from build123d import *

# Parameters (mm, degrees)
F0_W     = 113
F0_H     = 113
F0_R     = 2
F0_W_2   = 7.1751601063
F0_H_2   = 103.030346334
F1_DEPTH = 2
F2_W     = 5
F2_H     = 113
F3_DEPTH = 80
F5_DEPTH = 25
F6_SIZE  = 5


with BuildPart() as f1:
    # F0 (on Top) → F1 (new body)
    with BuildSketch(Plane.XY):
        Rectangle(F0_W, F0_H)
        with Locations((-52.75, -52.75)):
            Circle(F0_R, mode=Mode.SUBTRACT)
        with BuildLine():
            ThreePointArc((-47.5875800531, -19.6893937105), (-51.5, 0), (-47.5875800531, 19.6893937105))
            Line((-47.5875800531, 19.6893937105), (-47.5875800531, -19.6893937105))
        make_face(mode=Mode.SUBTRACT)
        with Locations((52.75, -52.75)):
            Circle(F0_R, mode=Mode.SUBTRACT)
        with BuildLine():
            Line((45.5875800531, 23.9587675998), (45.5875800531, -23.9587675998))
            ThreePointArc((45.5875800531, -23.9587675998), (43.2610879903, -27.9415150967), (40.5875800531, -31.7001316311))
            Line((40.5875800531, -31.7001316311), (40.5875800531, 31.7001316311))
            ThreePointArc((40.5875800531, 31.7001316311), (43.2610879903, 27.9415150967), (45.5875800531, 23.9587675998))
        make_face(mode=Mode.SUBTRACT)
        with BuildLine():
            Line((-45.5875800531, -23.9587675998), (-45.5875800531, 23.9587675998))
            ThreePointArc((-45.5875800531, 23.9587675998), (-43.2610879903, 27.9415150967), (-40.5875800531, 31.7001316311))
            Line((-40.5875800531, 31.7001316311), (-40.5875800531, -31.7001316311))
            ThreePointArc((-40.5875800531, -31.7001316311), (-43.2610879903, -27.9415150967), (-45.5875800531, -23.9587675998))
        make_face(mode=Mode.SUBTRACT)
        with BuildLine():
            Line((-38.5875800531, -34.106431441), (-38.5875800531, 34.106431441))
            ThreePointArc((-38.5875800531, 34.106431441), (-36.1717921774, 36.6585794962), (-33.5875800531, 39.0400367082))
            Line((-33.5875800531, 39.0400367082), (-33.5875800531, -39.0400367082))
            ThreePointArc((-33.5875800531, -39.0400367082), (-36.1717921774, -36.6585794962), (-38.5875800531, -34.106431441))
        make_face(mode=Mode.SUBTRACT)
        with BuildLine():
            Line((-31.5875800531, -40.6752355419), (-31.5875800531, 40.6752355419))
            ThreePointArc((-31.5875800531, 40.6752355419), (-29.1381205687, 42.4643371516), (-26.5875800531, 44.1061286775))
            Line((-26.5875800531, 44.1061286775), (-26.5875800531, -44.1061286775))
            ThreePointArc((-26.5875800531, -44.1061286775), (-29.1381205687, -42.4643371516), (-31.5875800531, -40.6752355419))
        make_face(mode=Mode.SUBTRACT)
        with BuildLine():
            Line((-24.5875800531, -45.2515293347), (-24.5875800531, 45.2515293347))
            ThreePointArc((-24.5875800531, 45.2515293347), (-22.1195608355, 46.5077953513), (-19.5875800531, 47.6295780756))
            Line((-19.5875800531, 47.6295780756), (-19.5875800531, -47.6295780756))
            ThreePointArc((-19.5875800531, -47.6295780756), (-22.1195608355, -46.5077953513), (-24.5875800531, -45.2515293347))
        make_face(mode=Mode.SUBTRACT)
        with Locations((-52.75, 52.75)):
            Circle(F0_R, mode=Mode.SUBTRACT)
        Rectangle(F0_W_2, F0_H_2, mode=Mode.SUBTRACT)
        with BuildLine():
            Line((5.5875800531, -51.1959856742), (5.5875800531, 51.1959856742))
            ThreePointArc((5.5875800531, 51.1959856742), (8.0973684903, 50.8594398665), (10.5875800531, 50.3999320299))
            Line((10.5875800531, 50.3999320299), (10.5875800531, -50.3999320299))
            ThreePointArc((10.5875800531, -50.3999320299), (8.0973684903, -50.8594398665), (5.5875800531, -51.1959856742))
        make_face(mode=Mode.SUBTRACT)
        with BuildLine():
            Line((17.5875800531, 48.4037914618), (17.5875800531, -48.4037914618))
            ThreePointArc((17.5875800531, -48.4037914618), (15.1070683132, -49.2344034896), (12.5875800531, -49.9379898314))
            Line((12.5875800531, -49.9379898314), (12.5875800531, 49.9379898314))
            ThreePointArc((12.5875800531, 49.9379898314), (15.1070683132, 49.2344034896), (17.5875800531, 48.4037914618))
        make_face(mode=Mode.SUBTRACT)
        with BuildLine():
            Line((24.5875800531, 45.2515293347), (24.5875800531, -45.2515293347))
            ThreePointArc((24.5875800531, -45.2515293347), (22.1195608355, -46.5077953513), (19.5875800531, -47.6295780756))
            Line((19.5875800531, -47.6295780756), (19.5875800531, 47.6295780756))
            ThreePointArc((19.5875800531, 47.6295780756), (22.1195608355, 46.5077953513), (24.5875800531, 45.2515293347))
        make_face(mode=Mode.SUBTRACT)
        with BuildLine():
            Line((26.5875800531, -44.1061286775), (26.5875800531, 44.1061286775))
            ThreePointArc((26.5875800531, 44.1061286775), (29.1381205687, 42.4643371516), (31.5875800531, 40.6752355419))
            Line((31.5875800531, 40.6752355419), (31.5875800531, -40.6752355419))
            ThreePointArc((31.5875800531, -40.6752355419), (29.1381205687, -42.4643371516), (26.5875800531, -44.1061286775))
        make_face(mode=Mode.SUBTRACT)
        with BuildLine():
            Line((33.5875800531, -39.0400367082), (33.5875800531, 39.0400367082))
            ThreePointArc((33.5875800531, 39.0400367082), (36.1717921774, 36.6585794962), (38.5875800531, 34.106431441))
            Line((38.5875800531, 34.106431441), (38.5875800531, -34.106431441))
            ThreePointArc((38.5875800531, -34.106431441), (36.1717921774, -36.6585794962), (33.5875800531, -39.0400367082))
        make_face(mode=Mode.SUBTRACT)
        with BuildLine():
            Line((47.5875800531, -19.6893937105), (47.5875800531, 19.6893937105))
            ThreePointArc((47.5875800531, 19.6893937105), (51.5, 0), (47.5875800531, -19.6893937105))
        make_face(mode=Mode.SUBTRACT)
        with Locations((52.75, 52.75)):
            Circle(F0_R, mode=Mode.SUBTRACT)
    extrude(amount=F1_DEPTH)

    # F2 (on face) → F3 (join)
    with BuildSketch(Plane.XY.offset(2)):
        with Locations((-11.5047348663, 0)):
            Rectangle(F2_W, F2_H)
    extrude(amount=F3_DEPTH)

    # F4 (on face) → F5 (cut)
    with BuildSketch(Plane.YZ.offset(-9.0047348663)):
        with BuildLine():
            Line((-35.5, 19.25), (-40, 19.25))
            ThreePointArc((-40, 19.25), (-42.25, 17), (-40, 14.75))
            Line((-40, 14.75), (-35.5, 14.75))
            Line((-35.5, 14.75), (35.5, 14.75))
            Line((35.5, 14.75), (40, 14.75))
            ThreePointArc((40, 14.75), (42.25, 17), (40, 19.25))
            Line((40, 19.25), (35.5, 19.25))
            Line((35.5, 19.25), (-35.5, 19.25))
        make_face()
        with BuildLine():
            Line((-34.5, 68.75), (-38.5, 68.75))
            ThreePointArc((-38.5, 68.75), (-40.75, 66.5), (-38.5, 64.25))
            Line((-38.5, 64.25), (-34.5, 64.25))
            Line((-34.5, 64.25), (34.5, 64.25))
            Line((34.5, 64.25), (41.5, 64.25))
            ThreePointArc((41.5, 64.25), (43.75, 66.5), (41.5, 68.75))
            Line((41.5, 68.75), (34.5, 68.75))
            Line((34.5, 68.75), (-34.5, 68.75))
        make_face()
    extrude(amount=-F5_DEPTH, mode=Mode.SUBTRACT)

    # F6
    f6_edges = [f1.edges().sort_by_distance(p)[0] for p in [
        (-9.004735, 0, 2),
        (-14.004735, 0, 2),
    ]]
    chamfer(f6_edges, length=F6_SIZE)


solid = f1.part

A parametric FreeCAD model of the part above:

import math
import FreeCAD as App
import Part
import Sketcher


def edges_at(feature, points):
    """Names of the edges that pass closest to the given points."""
    edges = feature.Shape.Edges
    near = lambda p: min(range(len(edges)), key=lambda i: edges[i].distToShape(Part.Vertex(*p))[0])
    return sorted({f"Edge{near(p) + 1}" for p in points})


def add_polygon(sketch, points):
    """Adds a closed chain of lines whose ends are joined by coincident constraints."""
    first, n = sketch.GeometryCount, len(points)
    for a, b in zip(points, points[1:] + points[:1]):
        sketch.addGeometry(Part.LineSegment(App.Vector(*a, 0), App.Vector(*b, 0)), False)
    for i in range(n):
        sketch.addConstraint(Sketcher.Constraint("Coincident", first + i, 2, first + (i + 1) % n, 1))

doc = App.newDocument("Part")
body = doc.addObject("PartDesign::Body", "Body")

# Sketch on XY plane
sketch1 = body.newObject("Sketcher::SketchObject", "Sketch")
sketch1.AttachmentSupport = (doc.getObject("XY_Plane"), [""])
sketch1.MapMode = "FlatFace"
add_polygon(sketch1, [(-56.5, 56.5), (-56.5, -56.5), (56.5, -56.5), (56.5, 56.5)])  # lines 0-3
sketch1.addGeometry(Part.Circle(App.Vector(-52.8, -52.8, 0), App.Vector(0, 0, 1), 2), False)  # 4
sketch1.addGeometry(Part.Circle(App.Vector(52.8, -52.8, 0), App.Vector(0, 0, 1), 2), False)  # 5
sketch1.addGeometry(Part.ArcOfCircle(Part.Circle(App.Vector(0, 0, 0), App.Vector(0, 0, 1), 51.5), math.radians(70.03), math.radians(75.85)), False)  # 6
sketch1.addGeometry(Part.LineSegment(App.Vector(17.6, 48.4, 0), App.Vector(17.6, -48.4, 0)), False)  # 7
sketch1.addGeometry(Part.ArcOfCircle(Part.Circle(App.Vector(0, 0, 0), App.Vector(0, 0, 1), 51.5), math.radians(-75.85), math.radians(-70.03)), False)  # 8
sketch1.addGeometry(Part.LineSegment(App.Vector(12.6, -49.9, 0), App.Vector(12.6, 49.9, 0)), False)  # 9
sketch1.addGeometry(Part.LineSegment(App.Vector(-47.6, 19.7, 0), App.Vector(-47.6, -19.7, 0)), False)  # 10
sketch1.addGeometry(Part.ArcOfCircle(Part.Circle(App.Vector(0, 0, 0), App.Vector(0, 0, 1), 51.5), math.radians(158), math.radians(202)), False)  # 11
sketch1.addGeometry(Part.ArcOfCircle(Part.Circle(App.Vector(0, 0, 0), App.Vector(0, 0, 1), 51.5), math.radians(-152.28), math.radians(-142.01)), False)  # 12
sketch1.addGeometry(Part.LineSegment(App.Vector(-45.6, -24, 0), App.Vector(-45.6, 24, 0)), False)  # 13
sketch1.addGeometry(Part.ArcOfCircle(Part.Circle(App.Vector(0, 0, 0), App.Vector(0, 0, 1), 51.5), math.radians(142.01), math.radians(152.28)), False)  # 14
sketch1.addGeometry(Part.LineSegment(App.Vector(-40.6, 31.7, 0), App.Vector(-40.6, -31.7, 0)), False)  # 15
sketch1.addGeometry(Part.ArcOfCircle(Part.Circle(App.Vector(0, 0, 0), App.Vector(0, 0, 1), 51.5), math.radians(-138.53), math.radians(-130.71)), False)  # 16
sketch1.addGeometry(Part.LineSegment(App.Vector(-38.6, -34.1, 0), App.Vector(-38.6, 34.1, 0)), False)  # 17
sketch1.addGeometry(Part.ArcOfCircle(Part.Circle(App.Vector(0, 0, 0), App.Vector(0, 0, 1), 51.5), math.radians(130.71), math.radians(138.53)), False)  # 18
sketch1.addGeometry(Part.LineSegment(App.Vector(-33.6, 39, 0), App.Vector(-33.6, -39, 0)), False)  # 19
sketch1.addGeometry(Part.ArcOfCircle(Part.Circle(App.Vector(0, 0, 0), App.Vector(0, 0, 1), 51.5), math.radians(-127.83), math.radians(-121.08)), False)  # 20
sketch1.addGeometry(Part.LineSegment(App.Vector(-31.6, -40.7, 0), App.Vector(-31.6, 40.7, 0)), False)  # 21
sketch1.addGeometry(Part.ArcOfCircle(Part.Circle(App.Vector(0, 0, 0), App.Vector(0, 0, 1), 51.5), math.radians(121.08), math.radians(127.83)), False)  # 22
sketch1.addGeometry(Part.LineSegment(App.Vector(-26.6, 44.1, 0), App.Vector(-26.6, -44.1, 0)), False)  # 23
sketch1.addGeometry(Part.ArcOfCircle(Part.Circle(App.Vector(0, 0, 0), App.Vector(0, 0, 1), 51.5), math.radians(-118.52), math.radians(-112.35)), False)  # 24
sketch1.addGeometry(Part.LineSegment(App.Vector(-24.6, -45.3, 0), App.Vector(-24.6, 45.3, 0)), False)  # 25
sketch1.addGeometry(Part.ArcOfCircle(Part.Circle(App.Vector(0, 0, 0), App.Vector(0, 0, 1), 51.5), math.radians(112.35), math.radians(118.52)), False)  # 26
sketch1.addGeometry(Part.LineSegment(App.Vector(-19.6, 47.6, 0), App.Vector(-19.6, -47.6, 0)), False)  # 27
sketch1.addGeometry(Part.Circle(App.Vector(-52.8, 52.8, 0), App.Vector(0, 0, 1), 2), False)  # 28
add_polygon(sketch1, [(3.6, -51.5), (-3.6, -51.5), (-3.6, 51.5), (3.6, 51.5)])  # lines 29-32
sketch1.addGeometry(Part.ArcOfCircle(Part.Circle(App.Vector(0, 0, 0), App.Vector(0, 0, 1), 51.5), math.radians(-83.77), math.radians(-78.14)), False)  # 33
sketch1.addGeometry(Part.LineSegment(App.Vector(5.6, -51.2, 0), App.Vector(5.6, 51.2, 0)), False)  # 34
sketch1.addGeometry(Part.ArcOfCircle(Part.Circle(App.Vector(0, 0, 0), App.Vector(0, 0, 1), 51.5), math.radians(78.14), math.radians(83.77)), False)  # 35
sketch1.addGeometry(Part.LineSegment(App.Vector(10.6, 50.4, 0), App.Vector(10.6, -50.4, 0)), False)  # 36
sketch1.addGeometry(Part.ArcOfCircle(Part.Circle(App.Vector(0, 0, 0), App.Vector(0, 0, 1), 51.5), math.radians(61.48), math.radians(67.65)), False)  # 37
sketch1.addGeometry(Part.LineSegment(App.Vector(24.6, 45.3, 0), App.Vector(24.6, -45.3, 0)), False)  # 38
sketch1.addGeometry(Part.ArcOfCircle(Part.Circle(App.Vector(0, 0, 0), App.Vector(0, 0, 1), 51.5), math.radians(-67.65), math.radians(-61.48)), False)  # 39
sketch1.addGeometry(Part.LineSegment(App.Vector(19.6, -47.6, 0), App.Vector(19.6, 47.6, 0)), False)  # 40
sketch1.addGeometry(Part.ArcOfCircle(Part.Circle(App.Vector(0, 0, 0), App.Vector(0, 0, 1), 51.5), math.radians(-58.92), math.radians(-52.17)), False)  # 41
sketch1.addGeometry(Part.LineSegment(App.Vector(26.6, -44.1, 0), App.Vector(26.6, 44.1, 0)), False)  # 42
sketch1.addGeometry(Part.ArcOfCircle(Part.Circle(App.Vector(0, 0, 0), App.Vector(0, 0, 1), 51.5), math.radians(52.17), math.radians(58.92)), False)  # 43
sketch1.addGeometry(Part.LineSegment(App.Vector(31.6, 40.7, 0), App.Vector(31.6, -40.7, 0)), False)  # 44
sketch1.addGeometry(Part.ArcOfCircle(Part.Circle(App.Vector(0, 0, 0), App.Vector(0, 0, 1), 51.5), math.radians(-49.29), math.radians(-41.47)), False)  # 45
sketch1.addGeometry(Part.LineSegment(App.Vector(33.6, -39, 0), App.Vector(33.6, 39, 0)), False)  # 46
sketch1.addGeometry(Part.ArcOfCircle(Part.Circle(App.Vector(0, 0, 0), App.Vector(0, 0, 1), 51.5), math.radians(41.47), math.radians(49.29)), False)  # 47
sketch1.addGeometry(Part.LineSegment(App.Vector(38.6, 34.1, 0), App.Vector(38.6, -34.1, 0)), False)  # 48
sketch1.addGeometry(Part.ArcOfCircle(Part.Circle(App.Vector(0, 0, 0), App.Vector(0, 0, 1), 51.5), math.radians(27.72), math.radians(37.99)), False)  # 49
sketch1.addGeometry(Part.LineSegment(App.Vector(45.6, 24, 0), App.Vector(45.6, -24, 0)), False)  # 50
sketch1.addGeometry(Part.ArcOfCircle(Part.Circle(App.Vector(0, 0, 0), App.Vector(0, 0, 1), 51.5), math.radians(-37.99), math.radians(-27.72)), False)  # 51
sketch1.addGeometry(Part.LineSegment(App.Vector(40.6, -31.7, 0), App.Vector(40.6, 31.7, 0)), False)  # 52
sketch1.addGeometry(Part.ArcOfCircle(Part.Circle(App.Vector(0, 0, 0), App.Vector(0, 0, 1), 51.5), math.radians(-22), math.radians(22)), False)  # 53
sketch1.addGeometry(Part.LineSegment(App.Vector(47.6, -19.7, 0), App.Vector(47.6, 19.7, 0)), False)  # 54
sketch1.addGeometry(Part.Circle(App.Vector(52.8, 52.8, 0), App.Vector(0, 0, 1), 2), False)  # 55
sketch1.addConstraint([
    Sketcher.Constraint("Coincident", 6, 1, 7, 1),
    Sketcher.Constraint("Coincident", 7, 2, 8, 2),
    Sketcher.Constraint("Coincident", 8, 1, 9, 1),
    Sketcher.Constraint("Coincident", 9, 2, 6, 2),
    Sketcher.Constraint("Coincident", 10, 1, 11, 1),
    Sketcher.Constraint("Coincident", 11, 2, 10, 2),
    Sketcher.Constraint("Coincident", 12, 1, 13, 1),
    Sketcher.Constraint("Coincident", 13, 2, 14, 2),
    Sketcher.Constraint("Coincident", 14, 1, 15, 1),
    Sketcher.Constraint("Coincident", 15, 2, 12, 2),
    Sketcher.Constraint("Coincident", 16, 1, 17, 1),
    Sketcher.Constraint("Coincident", 17, 2, 18, 2),
    Sketcher.Constraint("Coincident", 18, 1, 19, 1),
    Sketcher.Constraint("Coincident", 19, 2, 16, 2),
    Sketcher.Constraint("Coincident", 20, 1, 21, 1),
    Sketcher.Constraint("Coincident", 21, 2, 22, 2),
    Sketcher.Constraint("Coincident", 22, 1, 23, 1),
    Sketcher.Constraint("Coincident", 23, 2, 20, 2),
    Sketcher.Constraint("Coincident", 24, 1, 25, 1),
    Sketcher.Constraint("Coincident", 25, 2, 26, 2),
    Sketcher.Constraint("Coincident", 26, 1, 27, 1),
    Sketcher.Constraint("Coincident", 27, 2, 24, 2),
    Sketcher.Constraint("Coincident", 33, 1, 34, 1),
    Sketcher.Constraint("Coincident", 34, 2, 35, 2),
    Sketcher.Constraint("Coincident", 35, 1, 36, 1),
    Sketcher.Constraint("Coincident", 36, 2, 33, 2),
    Sketcher.Constraint("Coincident", 37, 1, 38, 1),
    Sketcher.Constraint("Coincident", 38, 2, 39, 2),
    Sketcher.Constraint("Coincident", 39, 1, 40, 1),
    Sketcher.Constraint("Coincident", 40, 2, 37, 2),
    Sketcher.Constraint("Coincident", 41, 1, 42, 1),
    Sketcher.Constraint("Coincident", 42, 2, 43, 2),
    Sketcher.Constraint("Coincident", 43, 1, 44, 1),
    Sketcher.Constraint("Coincident", 44, 2, 41, 2),
    Sketcher.Constraint("Coincident", 45, 1, 46, 1),
    Sketcher.Constraint("Coincident", 46, 2, 47, 2),
    Sketcher.Constraint("Coincident", 47, 1, 48, 1),
    Sketcher.Constraint("Coincident", 48, 2, 45, 2),
    Sketcher.Constraint("Coincident", 49, 1, 50, 1),
    Sketcher.Constraint("Coincident", 50, 2, 51, 2),
    Sketcher.Constraint("Coincident", 51, 1, 52, 1),
    Sketcher.Constraint("Coincident", 52, 2, 49, 2),
    Sketcher.Constraint("Coincident", 53, 1, 54, 1),
    Sketcher.Constraint("Coincident", 54, 2, 53, 2),
    Sketcher.Constraint("Vertical", 0),
    Sketcher.Constraint("Horizontal", 1),
    Sketcher.Constraint("Vertical", 2),
    Sketcher.Constraint("Horizontal", 3),
    Sketcher.Constraint("Vertical", 7),
    Sketcher.Constraint("Vertical", 9),
    Sketcher.Constraint("Vertical", 10),
    Sketcher.Constraint("Vertical", 13),
    Sketcher.Constraint("Vertical", 15),
    Sketcher.Constraint("Vertical", 17),
    Sketcher.Constraint("Vertical", 19),
    Sketcher.Constraint("Vertical", 21),
    Sketcher.Constraint("Vertical", 23),
    Sketcher.Constraint("Vertical", 25),
    Sketcher.Constraint("Vertical", 27),
    Sketcher.Constraint("Horizontal", 29),
    Sketcher.Constraint("Vertical", 30),
    Sketcher.Constraint("Horizontal", 31),
    Sketcher.Constraint("Vertical", 32),
    Sketcher.Constraint("Vertical", 34),
    Sketcher.Constraint("Vertical", 36),
    Sketcher.Constraint("Vertical", 38),
    Sketcher.Constraint("Vertical", 40),
    Sketcher.Constraint("Vertical", 42),
    Sketcher.Constraint("Vertical", 44),
    Sketcher.Constraint("Vertical", 46),
    Sketcher.Constraint("Vertical", 48),
    Sketcher.Constraint("Vertical", 50),
    Sketcher.Constraint("Vertical", 52),
    Sketcher.Constraint("Vertical", 54),
    Sketcher.Constraint("Coincident", 6, 3, -1, 1),
    Sketcher.Constraint("Coincident", 8, 3, -1, 1),
    Sketcher.Constraint("Coincident", 11, 3, -1, 1),
    Sketcher.Constraint("Coincident", 12, 3, -1, 1),
    Sketcher.Constraint("Coincident", 14, 3, -1, 1),
    Sketcher.Constraint("Coincident", 16, 3, -1, 1),
    Sketcher.Constraint("Coincident", 18, 3, -1, 1),
    Sketcher.Constraint("Coincident", 20, 3, -1, 1),
    Sketcher.Constraint("Coincident", 22, 3, -1, 1),
    Sketcher.Constraint("Coincident", 24, 3, -1, 1),
    Sketcher.Constraint("Coincident", 26, 3, -1, 1),
    Sketcher.Constraint("Coincident", 33, 3, -1, 1),
    Sketcher.Constraint("Coincident", 35, 3, -1, 1),
    Sketcher.Constraint("Coincident", 37, 3, -1, 1),
    Sketcher.Constraint("Coincident", 39, 3, -1, 1),
    Sketcher.Constraint("Coincident", 41, 3, -1, 1),
    Sketcher.Constraint("Coincident", 43, 3, -1, 1),
    Sketcher.Constraint("Coincident", 45, 3, -1, 1),
    Sketcher.Constraint("Coincident", 47, 3, -1, 1),
    Sketcher.Constraint("Coincident", 49, 3, -1, 1),
    Sketcher.Constraint("Coincident", 51, 3, -1, 1),
    Sketcher.Constraint("Coincident", 53, 3, -1, 1),
    Sketcher.Constraint("Equal", 4, 5),
    Sketcher.Constraint("Equal", 6, 8),
    Sketcher.Constraint("Equal", 8, 11),
    Sketcher.Constraint("Equal", 11, 12),
    Sketcher.Constraint("Equal", 12, 14),
    Sketcher.Constraint("Equal", 14, 16),
    Sketcher.Constraint("Equal", 16, 18),
    Sketcher.Constraint("Equal", 18, 20),
    Sketcher.Constraint("Equal", 20, 22),
    Sketcher.Constraint("Equal", 22, 24),
    Sketcher.Constraint("Equal", 24, 26),
    Sketcher.Constraint("Equal", 5, 28),
    Sketcher.Constraint("Equal", 26, 33),
    Sketcher.Constraint("Equal", 33, 35),
    Sketcher.Constraint("Equal", 35, 37),
    Sketcher.Constraint("Equal", 37, 39),
    Sketcher.Constraint("Equal", 39, 41),
    Sketcher.Constraint("Equal", 41, 43),
    Sketcher.Constraint("Equal", 43, 45),
    Sketcher.Constraint("Equal", 45, 47),
    Sketcher.Constraint("Equal", 47, 49),
    Sketcher.Constraint("Equal", 49, 51),
    Sketcher.Constraint("Equal", 51, 53),
    Sketcher.Constraint("Equal", 28, 55),
    Sketcher.Constraint("Symmetric", 5, 3, 28, 3, -1, 1),
    Sketcher.Constraint("Symmetric", 4, 3, 55, 3, -1, 1),
    Sketcher.Constraint("Symmetric", 0, 2, 2, 2, -1, 1),
    Sketcher.Constraint("Symmetric", 29, 2, 31, 2, -1, 1),
    Sketcher.Constraint("Symmetric", 4, 3, 5, 3, -2),
    Sketcher.Constraint("Horizontal", 25, 2, 37, 1),
    Sketcher.Constraint("Horizontal", 27, 2, 39, 1),
    Sketcher.Constraint("Horizontal", 23, 2, 41, 1),
    Sketcher.Constraint("Horizontal", 21, 2, 43, 1),
    Sketcher.Constraint("Horizontal", 19, 2, 45, 1),
    Sketcher.Constraint("Horizontal", 17, 2, 47, 1),
    Sketcher.Constraint("Horizontal", 13, 2, 49, 1),
    Sketcher.Constraint("Horizontal", 15, 2, 51, 1),
    Sketcher.Constraint("Horizontal", 11, 2, 53, 1),
    Sketcher.Constraint("Equal", 3, 0),
    Sketcher.Constraint("Diameter", 4, 4.0),
    Sketcher.Constraint("Radius", 6, 51.5),
    Sketcher.Constraint("DistanceX", 1, 1, 1, 2, 113.0),
    Sketcher.Constraint("DistanceX", 4, 3, -1, 1, 52.75),
    Sketcher.Constraint("DistanceY", 4, 3, -1, 1, 52.75),
    Sketcher.Constraint("DistanceX", 29, 2, 29, 1, 7.17516),
    Sketcher.Constraint("DistanceY", 9, 1, 9, 2, 99.87598),
    Sketcher.Constraint("DistanceY", 21, 1, 21, 2, 81.350471),
    Sketcher.Constraint("DistanceY", 25, 1, 25, 2, 90.503059),
    Sketcher.Constraint("DistanceY", 34, 1, 34, 2, 102.391971),
    Sketcher.Constraint("DistanceY", 7, 2, 7, 1, 96.807583),
    Sketcher.Constraint("DistanceY", 10, 2, 10, 1, 39.378787),
    Sketcher.Constraint("DistanceY", 13, 1, 13, 2, 47.917535),
    Sketcher.Constraint("DistanceY", 15, 2, 15, 1, 63.400263),
    Sketcher.Constraint("DistanceY", 17, 1, 17, 2, 68.212863),
    Sketcher.Constraint("DistanceY", 19, 2, 19, 1, 78.080073),
    Sketcher.Constraint("DistanceY", 23, 2, 23, 1, 88.212257),
    Sketcher.Constraint("DistanceY", 27, 2, 27, 1, 95.259156),
    Sketcher.Constraint("DistanceY", 30, 1, 30, 2, 103.030346),
    Sketcher.Constraint("DistanceY", 36, 2, 36, 1, 100.799864),
])
pad1 = body.newObject("PartDesign::Pad", "Pad")
pad1.Profile = sketch1
pad1.Length = 2

# Sketch on XY plane
sketch2 = body.newObject("Sketcher::SketchObject", "Sketch001")
sketch2.AttachmentSupport = (doc.getObject("XY_Plane"), [""])
sketch2.MapMode = "FlatFace"
sketch2.AttachmentOffset = App.Placement(App.Vector(0, 0, 2), App.Rotation())
add_polygon(sketch2, [(-14, 56), (-14, -56), (-9, -56), (-9, 56)])  # lines 0-3
sketch2.addConstraint([
    Sketcher.Constraint("Vertical", 0),
    Sketcher.Constraint("Horizontal", 1),
    Sketcher.Constraint("Vertical", 2),
    Sketcher.Constraint("Horizontal", 3),
    Sketcher.Constraint("DistanceX", 1, 1, 1, 2, 5.0),
    Sketcher.Constraint("DistanceY", 0, 2, 0, 1, 113.0),
    Sketcher.Constraint("DistanceY", 0, 2, -1, 1, 56.5),
    Sketcher.Constraint("DistanceX", 0, 2, -1, 1, 14.004735),
])
pad2 = body.newObject("PartDesign::Pad", "Pad001")
pad2.Profile = sketch2
pad2.Length = 80

# Sketch on YZ plane
sketch3 = body.newObject("Sketcher::SketchObject", "Sketch002")
sketch3.AttachmentSupport = (doc.getObject("YZ_Plane"), [""])
sketch3.MapMode = "FlatFace"
sketch3.AttachmentOffset = App.Placement(App.Vector(0, 0, -9.004735), App.Rotation())
sketch3.addGeometry([
    Part.ArcOfCircle(Part.Circle(App.Vector(-40, 17, 0), App.Vector(0, 0, 1), 2.2), math.radians(90), math.radians(270)),  # 0
    Part.LineSegment(App.Vector(-40, 14.8, 0), App.Vector(40, 14.8, 0)),  # 1
    Part.ArcOfCircle(Part.Circle(App.Vector(40, 17, 0), App.Vector(0, 0, 1), 2.2), math.radians(-90), math.radians(90)),  # 2
    Part.LineSegment(App.Vector(40, 19.2, 0), App.Vector(-40, 19.2, 0)),  # 3
    Part.ArcOfCircle(Part.Circle(App.Vector(-38.5, 66.5, 0), App.Vector(0, 0, 1), 2.2), math.radians(90), math.radians(270)),  # 4
    Part.LineSegment(App.Vector(-38.5, 64.2, 0), App.Vector(41.5, 64.2, 0)),  # 5
    Part.ArcOfCircle(Part.Circle(App.Vector(41.5, 66.5, 0), App.Vector(0, 0, 1), 2.2), math.radians(-90), math.radians(90)),  # 6
    Part.LineSegment(App.Vector(41.5, 68.8, 0), App.Vector(-38.5, 68.8, 0)),  # 7
], False)
sketch3.addConstraint([
    Sketcher.Constraint("Tangent", 0, 2, 1, 1),
    Sketcher.Constraint("Tangent", 1, 2, 2, 1),
    Sketcher.Constraint("Tangent", 2, 2, 3, 1),
    Sketcher.Constraint("Tangent", 3, 2, 0, 1),
    Sketcher.Constraint("Tangent", 4, 2, 5, 1),
    Sketcher.Constraint("Tangent", 5, 2, 6, 1),
    Sketcher.Constraint("Tangent", 6, 2, 7, 1),
    Sketcher.Constraint("Tangent", 7, 2, 4, 1),
    Sketcher.Constraint("Horizontal", 1),
    Sketcher.Constraint("Horizontal", 3),
    Sketcher.Constraint("Horizontal", 5),
    Sketcher.Constraint("Horizontal", 7),
    Sketcher.Constraint("Equal", 2, 4),
    Sketcher.Constraint("Equal", 3, 5),
    Sketcher.Constraint("DistanceX", 1, 1, 1, 2, 80.0),
    Sketcher.Constraint("Radius", 0, 2.25),
    Sketcher.Constraint("DistanceX", 0, 3, -1, 1, 40.0),
    Sketcher.Constraint("DistanceY", -1, 1, 0, 3, 17.0),
    Sketcher.Constraint("DistanceY", 3, 2, 4, 2, 45.0),
    Sketcher.Constraint("DistanceX", 4, 3, -1, 1, 38.5),
])
pocket1 = body.newObject("PartDesign::Pocket", "Pocket")
pocket1.Profile = sketch3
pocket1.Length = 25
doc.recompute()

chamfer = body.newObject("PartDesign::Chamfer", "Chamfer")
chamfer.Base = (pocket1, edges_at(pocket1, [(-9.005, 0, 2), (-14.005, 0, 2)]))
chamfer.Size = 5

doc.recompute()
